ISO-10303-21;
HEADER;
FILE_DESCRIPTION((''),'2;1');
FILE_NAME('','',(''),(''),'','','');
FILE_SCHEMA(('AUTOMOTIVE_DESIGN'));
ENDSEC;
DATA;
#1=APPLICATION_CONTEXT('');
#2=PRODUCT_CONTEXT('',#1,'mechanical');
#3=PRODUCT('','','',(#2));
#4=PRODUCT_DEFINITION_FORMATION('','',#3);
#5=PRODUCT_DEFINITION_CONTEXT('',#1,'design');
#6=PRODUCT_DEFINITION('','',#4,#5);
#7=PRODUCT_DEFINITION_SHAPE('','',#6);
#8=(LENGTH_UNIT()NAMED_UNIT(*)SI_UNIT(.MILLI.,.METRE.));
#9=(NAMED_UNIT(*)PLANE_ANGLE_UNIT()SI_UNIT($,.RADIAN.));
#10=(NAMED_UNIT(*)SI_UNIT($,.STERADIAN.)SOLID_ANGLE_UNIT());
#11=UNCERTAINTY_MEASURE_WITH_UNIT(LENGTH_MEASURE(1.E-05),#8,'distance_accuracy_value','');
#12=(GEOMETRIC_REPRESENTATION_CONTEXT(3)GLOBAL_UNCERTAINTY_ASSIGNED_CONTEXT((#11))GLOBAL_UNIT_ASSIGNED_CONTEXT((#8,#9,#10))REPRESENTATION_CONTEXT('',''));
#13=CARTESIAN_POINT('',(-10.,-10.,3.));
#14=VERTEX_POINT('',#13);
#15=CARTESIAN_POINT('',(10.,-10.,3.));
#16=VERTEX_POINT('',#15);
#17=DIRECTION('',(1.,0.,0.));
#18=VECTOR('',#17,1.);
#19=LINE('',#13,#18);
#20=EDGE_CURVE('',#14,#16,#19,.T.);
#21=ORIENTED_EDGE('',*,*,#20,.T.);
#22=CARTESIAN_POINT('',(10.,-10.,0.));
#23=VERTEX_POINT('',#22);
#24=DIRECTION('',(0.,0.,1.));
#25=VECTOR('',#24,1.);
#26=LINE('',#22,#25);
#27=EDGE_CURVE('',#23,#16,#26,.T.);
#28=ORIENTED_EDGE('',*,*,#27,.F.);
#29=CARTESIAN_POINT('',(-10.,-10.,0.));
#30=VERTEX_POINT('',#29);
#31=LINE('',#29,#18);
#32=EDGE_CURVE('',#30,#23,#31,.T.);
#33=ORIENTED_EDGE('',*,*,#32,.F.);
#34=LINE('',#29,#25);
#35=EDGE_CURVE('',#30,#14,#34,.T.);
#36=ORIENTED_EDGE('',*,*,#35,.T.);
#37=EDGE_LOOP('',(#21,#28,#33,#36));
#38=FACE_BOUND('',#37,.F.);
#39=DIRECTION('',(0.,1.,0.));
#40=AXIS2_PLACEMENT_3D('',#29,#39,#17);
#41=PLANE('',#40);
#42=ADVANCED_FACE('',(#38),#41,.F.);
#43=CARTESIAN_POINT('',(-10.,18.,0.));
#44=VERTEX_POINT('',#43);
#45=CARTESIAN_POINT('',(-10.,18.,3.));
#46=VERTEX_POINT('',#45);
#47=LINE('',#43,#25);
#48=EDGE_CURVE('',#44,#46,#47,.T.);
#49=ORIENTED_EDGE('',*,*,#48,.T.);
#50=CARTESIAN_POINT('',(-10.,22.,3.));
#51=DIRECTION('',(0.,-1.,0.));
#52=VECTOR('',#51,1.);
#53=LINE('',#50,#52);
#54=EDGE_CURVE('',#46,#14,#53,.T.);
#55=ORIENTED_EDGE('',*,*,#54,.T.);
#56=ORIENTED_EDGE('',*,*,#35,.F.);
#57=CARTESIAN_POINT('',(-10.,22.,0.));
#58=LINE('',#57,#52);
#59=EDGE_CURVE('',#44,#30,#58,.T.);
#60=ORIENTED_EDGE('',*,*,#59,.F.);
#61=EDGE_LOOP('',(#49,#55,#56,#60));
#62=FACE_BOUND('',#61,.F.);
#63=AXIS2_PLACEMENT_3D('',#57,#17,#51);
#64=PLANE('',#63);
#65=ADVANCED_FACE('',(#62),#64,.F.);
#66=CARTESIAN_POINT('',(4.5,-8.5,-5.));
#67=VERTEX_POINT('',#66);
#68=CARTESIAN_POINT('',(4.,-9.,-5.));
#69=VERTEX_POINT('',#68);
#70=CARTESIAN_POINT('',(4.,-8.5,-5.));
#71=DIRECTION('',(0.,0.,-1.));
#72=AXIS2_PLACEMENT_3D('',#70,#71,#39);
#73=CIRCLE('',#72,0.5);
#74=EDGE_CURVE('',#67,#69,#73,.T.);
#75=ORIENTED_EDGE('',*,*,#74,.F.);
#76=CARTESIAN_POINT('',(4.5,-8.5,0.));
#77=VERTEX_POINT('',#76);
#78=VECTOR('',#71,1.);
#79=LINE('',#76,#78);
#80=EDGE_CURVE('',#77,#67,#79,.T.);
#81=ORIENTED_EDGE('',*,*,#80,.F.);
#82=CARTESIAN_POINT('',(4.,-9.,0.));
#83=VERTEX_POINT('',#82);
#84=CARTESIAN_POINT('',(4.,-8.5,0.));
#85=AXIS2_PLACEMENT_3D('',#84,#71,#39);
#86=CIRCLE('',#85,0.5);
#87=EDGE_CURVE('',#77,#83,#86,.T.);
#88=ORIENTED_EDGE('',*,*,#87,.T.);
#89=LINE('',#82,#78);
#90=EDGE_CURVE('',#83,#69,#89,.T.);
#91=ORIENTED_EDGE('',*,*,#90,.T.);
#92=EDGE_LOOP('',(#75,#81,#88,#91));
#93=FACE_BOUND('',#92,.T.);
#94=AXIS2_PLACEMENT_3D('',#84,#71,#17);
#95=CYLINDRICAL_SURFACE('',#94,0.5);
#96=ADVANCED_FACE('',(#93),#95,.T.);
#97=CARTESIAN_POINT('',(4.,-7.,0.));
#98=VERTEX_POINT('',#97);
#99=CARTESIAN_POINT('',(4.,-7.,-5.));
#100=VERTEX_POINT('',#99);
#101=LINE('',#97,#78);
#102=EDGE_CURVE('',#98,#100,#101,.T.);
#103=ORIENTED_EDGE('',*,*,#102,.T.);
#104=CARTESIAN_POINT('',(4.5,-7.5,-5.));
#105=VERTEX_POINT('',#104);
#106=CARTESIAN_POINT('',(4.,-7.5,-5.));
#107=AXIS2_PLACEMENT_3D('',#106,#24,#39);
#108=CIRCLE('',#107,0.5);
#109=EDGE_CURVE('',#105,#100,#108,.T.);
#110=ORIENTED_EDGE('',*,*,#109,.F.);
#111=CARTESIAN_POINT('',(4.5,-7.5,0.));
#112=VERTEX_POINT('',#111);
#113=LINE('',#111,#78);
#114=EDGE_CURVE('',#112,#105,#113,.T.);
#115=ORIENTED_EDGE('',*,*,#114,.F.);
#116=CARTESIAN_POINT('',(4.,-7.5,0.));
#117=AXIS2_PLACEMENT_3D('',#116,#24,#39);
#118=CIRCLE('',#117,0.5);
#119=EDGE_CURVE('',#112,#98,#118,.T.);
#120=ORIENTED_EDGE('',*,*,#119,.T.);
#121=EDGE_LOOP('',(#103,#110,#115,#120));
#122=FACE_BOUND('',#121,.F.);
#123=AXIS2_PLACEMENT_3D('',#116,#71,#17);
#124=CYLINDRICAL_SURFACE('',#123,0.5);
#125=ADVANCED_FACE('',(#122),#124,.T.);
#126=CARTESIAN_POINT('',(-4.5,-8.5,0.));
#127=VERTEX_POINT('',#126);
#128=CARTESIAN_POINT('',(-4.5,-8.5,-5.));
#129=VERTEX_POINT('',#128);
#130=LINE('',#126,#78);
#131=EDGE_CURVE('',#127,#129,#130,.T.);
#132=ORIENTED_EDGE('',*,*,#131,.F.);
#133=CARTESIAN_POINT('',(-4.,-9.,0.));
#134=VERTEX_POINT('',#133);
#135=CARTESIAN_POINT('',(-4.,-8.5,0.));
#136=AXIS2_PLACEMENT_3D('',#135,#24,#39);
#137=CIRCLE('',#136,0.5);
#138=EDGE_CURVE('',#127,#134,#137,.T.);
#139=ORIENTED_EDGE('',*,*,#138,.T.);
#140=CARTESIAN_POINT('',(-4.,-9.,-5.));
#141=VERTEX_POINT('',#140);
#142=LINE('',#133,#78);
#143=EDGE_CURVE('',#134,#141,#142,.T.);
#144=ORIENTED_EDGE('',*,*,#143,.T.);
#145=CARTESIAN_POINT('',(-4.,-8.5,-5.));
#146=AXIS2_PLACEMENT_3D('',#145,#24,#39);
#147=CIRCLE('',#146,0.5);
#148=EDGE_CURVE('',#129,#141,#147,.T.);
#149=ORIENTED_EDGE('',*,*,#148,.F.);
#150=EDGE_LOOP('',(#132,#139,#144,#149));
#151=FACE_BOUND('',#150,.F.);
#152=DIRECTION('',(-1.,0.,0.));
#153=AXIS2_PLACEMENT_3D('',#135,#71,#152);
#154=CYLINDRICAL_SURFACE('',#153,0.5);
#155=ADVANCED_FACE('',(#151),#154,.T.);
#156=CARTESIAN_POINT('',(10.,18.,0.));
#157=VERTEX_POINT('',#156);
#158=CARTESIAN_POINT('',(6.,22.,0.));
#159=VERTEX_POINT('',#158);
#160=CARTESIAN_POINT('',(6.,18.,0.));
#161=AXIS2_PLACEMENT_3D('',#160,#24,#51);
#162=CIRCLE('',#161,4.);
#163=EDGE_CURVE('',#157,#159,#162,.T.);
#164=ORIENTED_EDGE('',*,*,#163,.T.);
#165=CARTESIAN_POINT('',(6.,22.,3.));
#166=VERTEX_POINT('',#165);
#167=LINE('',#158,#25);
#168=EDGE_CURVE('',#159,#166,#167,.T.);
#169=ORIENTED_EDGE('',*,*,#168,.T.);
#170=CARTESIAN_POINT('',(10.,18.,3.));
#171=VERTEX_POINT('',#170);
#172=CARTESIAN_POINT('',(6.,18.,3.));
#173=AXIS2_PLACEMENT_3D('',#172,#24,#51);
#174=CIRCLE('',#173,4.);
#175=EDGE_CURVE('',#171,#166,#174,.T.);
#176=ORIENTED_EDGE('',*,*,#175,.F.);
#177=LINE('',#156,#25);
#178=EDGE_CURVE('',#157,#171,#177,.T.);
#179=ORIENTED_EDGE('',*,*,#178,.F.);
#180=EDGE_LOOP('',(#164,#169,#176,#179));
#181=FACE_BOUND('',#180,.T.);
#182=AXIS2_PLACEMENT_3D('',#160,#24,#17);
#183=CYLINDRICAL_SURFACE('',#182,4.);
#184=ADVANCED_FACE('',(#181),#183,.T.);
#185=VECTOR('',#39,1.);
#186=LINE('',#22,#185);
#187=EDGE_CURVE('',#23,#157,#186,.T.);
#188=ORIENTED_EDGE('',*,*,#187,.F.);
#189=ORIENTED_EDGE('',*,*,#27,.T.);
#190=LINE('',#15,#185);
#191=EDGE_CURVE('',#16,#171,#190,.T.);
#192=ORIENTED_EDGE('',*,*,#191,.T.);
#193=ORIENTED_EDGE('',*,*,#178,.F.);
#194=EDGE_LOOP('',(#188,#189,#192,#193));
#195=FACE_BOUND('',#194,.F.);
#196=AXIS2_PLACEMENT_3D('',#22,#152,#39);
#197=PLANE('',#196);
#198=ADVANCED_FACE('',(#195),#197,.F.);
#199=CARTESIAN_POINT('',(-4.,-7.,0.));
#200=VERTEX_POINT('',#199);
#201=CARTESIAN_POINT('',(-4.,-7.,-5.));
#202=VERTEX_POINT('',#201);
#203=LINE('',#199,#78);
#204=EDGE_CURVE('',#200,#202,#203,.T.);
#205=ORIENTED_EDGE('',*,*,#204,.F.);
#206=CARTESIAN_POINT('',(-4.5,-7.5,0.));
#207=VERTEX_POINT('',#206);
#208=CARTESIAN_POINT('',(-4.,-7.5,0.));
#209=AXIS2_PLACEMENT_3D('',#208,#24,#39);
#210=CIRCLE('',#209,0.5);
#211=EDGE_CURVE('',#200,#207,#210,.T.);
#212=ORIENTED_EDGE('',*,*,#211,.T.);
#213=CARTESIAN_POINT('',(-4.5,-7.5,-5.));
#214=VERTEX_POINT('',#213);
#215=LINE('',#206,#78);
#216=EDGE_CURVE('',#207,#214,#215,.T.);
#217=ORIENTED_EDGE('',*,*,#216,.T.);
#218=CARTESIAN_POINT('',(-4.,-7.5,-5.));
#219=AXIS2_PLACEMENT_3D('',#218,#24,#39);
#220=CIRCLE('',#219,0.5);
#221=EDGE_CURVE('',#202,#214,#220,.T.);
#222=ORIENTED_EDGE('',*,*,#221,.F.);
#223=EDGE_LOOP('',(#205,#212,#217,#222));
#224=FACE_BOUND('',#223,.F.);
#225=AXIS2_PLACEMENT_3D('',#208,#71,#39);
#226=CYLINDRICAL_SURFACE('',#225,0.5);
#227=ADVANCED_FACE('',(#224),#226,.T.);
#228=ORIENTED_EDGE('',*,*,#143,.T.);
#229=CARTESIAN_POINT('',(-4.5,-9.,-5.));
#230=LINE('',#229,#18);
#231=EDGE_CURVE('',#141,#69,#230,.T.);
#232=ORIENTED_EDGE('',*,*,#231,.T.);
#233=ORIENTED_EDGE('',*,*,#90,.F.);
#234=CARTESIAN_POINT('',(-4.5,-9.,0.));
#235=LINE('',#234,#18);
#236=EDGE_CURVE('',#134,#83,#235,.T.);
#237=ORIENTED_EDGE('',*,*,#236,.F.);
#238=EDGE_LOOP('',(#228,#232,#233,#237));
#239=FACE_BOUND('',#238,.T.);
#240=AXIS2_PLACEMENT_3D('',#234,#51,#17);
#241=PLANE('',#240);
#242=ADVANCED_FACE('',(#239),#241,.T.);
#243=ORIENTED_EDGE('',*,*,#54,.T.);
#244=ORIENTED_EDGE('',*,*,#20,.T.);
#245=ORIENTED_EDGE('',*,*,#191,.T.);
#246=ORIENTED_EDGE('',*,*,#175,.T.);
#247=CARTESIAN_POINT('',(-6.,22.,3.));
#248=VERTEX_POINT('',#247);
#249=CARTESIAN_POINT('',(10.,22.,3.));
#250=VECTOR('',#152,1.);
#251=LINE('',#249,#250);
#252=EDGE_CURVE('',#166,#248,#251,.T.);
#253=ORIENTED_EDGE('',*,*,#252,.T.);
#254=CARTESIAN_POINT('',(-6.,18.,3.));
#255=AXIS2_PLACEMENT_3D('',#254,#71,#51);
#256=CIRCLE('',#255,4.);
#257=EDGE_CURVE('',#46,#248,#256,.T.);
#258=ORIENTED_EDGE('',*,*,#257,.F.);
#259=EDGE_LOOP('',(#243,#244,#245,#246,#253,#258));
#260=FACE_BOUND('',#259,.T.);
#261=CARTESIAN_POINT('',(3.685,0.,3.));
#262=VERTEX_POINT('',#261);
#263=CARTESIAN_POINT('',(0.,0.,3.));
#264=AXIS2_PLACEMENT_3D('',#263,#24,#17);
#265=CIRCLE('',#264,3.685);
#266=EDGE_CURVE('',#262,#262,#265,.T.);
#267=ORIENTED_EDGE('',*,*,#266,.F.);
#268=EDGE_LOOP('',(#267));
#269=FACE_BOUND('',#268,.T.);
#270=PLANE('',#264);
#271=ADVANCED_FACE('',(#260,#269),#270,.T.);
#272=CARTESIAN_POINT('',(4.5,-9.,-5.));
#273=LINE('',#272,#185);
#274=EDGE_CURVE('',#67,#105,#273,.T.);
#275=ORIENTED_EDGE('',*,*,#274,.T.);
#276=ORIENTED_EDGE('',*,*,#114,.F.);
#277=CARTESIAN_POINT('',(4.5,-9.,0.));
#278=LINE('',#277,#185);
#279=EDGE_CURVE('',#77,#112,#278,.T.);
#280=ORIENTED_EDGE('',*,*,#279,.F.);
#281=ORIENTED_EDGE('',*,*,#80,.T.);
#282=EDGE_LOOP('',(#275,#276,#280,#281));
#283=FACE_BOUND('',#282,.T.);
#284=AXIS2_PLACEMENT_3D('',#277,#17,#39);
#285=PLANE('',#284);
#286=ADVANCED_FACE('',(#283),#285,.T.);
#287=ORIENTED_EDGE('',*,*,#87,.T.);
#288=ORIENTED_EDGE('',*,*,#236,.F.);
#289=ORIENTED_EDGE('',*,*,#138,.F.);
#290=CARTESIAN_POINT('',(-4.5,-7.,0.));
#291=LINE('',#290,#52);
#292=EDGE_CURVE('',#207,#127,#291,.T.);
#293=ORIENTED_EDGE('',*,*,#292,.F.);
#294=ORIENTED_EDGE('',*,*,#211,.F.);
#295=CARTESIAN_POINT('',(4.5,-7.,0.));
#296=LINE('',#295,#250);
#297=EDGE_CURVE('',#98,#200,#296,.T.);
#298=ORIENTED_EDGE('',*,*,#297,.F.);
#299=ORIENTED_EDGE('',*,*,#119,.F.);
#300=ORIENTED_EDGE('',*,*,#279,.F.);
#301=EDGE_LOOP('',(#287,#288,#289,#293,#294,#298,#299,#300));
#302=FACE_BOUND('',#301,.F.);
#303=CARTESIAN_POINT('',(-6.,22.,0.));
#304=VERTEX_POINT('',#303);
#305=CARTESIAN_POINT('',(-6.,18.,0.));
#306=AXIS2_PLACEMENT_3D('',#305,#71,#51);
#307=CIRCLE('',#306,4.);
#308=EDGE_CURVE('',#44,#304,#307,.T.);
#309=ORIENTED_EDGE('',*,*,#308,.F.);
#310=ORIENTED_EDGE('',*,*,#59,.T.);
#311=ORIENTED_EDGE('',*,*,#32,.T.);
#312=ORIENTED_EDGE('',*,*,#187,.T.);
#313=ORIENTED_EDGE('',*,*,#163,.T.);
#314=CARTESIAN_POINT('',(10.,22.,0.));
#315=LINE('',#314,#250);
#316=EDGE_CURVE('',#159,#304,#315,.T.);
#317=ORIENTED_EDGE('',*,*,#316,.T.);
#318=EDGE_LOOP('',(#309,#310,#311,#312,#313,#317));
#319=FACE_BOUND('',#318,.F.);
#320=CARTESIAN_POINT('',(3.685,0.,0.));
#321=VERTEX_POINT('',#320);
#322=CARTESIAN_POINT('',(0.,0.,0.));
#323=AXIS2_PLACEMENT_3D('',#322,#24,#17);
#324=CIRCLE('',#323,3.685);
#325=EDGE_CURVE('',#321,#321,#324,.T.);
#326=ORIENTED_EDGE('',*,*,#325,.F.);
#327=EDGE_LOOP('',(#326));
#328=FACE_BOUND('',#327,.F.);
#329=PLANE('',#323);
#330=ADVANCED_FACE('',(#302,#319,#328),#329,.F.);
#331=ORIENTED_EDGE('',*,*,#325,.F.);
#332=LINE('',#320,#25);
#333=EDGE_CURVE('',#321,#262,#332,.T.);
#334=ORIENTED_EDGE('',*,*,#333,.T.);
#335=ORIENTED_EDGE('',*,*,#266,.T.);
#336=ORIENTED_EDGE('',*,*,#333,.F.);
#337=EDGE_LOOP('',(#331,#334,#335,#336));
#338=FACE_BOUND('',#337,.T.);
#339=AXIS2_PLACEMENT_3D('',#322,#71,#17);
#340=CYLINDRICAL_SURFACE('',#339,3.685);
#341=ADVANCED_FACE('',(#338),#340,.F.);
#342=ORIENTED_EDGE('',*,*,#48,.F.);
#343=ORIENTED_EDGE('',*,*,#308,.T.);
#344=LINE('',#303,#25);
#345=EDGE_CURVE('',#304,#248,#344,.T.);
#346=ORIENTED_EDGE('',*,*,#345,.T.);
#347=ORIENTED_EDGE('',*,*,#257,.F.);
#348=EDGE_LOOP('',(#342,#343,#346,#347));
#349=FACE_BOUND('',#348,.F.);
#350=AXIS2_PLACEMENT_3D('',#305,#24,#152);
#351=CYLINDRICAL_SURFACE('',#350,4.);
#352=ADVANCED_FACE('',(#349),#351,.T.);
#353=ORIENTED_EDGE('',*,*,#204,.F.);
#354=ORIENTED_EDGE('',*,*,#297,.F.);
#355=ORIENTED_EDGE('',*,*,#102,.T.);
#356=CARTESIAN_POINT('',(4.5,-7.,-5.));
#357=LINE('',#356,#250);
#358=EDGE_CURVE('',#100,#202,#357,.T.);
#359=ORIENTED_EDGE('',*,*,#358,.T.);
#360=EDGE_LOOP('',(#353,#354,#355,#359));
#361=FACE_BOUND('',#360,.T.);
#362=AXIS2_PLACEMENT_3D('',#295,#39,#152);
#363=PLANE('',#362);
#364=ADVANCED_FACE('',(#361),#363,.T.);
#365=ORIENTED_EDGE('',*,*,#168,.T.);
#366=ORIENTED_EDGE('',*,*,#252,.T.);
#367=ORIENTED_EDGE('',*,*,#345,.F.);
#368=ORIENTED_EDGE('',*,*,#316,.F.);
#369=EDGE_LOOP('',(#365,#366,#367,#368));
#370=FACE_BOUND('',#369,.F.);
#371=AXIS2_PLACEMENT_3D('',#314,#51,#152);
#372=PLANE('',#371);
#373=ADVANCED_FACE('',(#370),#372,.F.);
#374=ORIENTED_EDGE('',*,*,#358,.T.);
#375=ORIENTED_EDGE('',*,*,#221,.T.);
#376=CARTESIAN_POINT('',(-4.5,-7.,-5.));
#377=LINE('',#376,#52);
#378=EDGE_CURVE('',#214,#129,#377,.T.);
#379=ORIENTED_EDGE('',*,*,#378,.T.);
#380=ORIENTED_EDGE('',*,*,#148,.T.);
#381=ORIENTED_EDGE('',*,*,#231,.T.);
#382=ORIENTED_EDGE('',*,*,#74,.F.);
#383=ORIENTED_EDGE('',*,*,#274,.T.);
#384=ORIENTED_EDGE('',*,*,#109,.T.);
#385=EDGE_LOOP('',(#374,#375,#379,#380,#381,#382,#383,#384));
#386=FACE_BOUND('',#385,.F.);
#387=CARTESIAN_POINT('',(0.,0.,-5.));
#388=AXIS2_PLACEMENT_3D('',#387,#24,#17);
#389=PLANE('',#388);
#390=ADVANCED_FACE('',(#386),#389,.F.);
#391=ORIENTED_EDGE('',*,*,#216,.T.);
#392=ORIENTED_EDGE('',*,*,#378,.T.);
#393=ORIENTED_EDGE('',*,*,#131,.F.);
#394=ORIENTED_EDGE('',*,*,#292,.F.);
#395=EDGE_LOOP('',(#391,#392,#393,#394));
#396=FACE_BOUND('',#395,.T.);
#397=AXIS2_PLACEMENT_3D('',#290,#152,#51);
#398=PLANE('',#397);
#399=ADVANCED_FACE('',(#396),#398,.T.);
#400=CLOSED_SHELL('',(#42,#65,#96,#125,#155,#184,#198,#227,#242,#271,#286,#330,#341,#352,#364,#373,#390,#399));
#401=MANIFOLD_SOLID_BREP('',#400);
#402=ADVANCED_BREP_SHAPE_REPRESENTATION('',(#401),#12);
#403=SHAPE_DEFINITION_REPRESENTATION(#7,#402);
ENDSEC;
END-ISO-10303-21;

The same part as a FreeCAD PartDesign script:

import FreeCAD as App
import Part
import Sketcher

V = App.Vector
Q = App.Units.Quantity


def edges_at(feature, points):
    """Names of the edges that pass closest to the given points."""
    edges = feature.Shape.Edges
    near = lambda p: min(range(len(edges)), key=lambda i: edges[i].distToShape(Part.Vertex(*p))[0])
    return sorted({f"Edge{near(p) + 1}" for p in points})

doc = App.newDocument("Part")
body = doc.addObject("PartDesign::Body", "Body")

# Sketch on XY plane
sketch1 = body.newObject("Sketcher::SketchObject", "Sketch")
sketch1.AttachmentSupport = (doc.getObject("XY_Plane"), [""])
sketch1.MapMode = "FlatFace"
sketch1.addGeometry(Part.LineSegment(V(-10, 22, 0), V(-10, -10, 0)), False)
sketch1.addGeometry(Part.LineSegment(V(-10, -10, 0), V(10, -10, 0)), False)
sketch1.addGeometry(Part.LineSegment(V(10, -10, 0), V(10, 22, 0)), False)
sketch1.addGeometry(Part.LineSegment(V(10, 22, 0), V(-10, 22, 0)), False)
sketch1.addGeometry(Part.LineSegment(V(6, 7, 0), V(6, -7, 0)), False)
sketch1.addGeometry(Part.LineSegment(V(6, -7, 0), V(-6, -7, 0)), False)
sketch1.addGeometry(Part.LineSegment(V(-6, -7, 0), V(-6, 7, 0)), False)
sketch1.addGeometry(Part.LineSegment(V(-6, 7, 0), V(6, 7, 0)), False)
sketch1.addConstraint(Sketcher.Constraint("Coincident", 0, 2, 1, 1))
sketch1.addConstraint(Sketcher.Constraint("Coincident", 1, 2, 2, 1))
sketch1.addConstraint(Sketcher.Constraint("Coincident", 2, 2, 3, 1))
sketch1.addConstraint(Sketcher.Constraint("Coincident", 3, 2, 0, 1))
sketch1.addConstraint(Sketcher.Constraint("Coincident", 4, 2, 5, 1))
sketch1.addConstraint(Sketcher.Constraint("Coincident", 5, 2, 6, 1))
sketch1.addConstraint(Sketcher.Constraint("Coincident", 6, 2, 7, 1))
sketch1.addConstraint(Sketcher.Constraint("Coincident", 7, 2, 4, 1))
sketch1.addConstraint(Sketcher.Constraint("Vertical", 0))
sketch1.addConstraint(Sketcher.Constraint("Horizontal", 1))
sketch1.addConstraint(Sketcher.Constraint("Vertical", 2))
sketch1.addConstraint(Sketcher.Constraint("Horizontal", 3))
sketch1.addConstraint(Sketcher.Constraint("Vertical", 4))
sketch1.addConstraint(Sketcher.Constraint("Horizontal", 5))
sketch1.addConstraint(Sketcher.Constraint("Vertical", 6))
sketch1.addConstraint(Sketcher.Constraint("Horizontal", 7))
sketch1.addConstraint(Sketcher.Constraint("Symmetric", 4, 2, 6, 2, -1, 1))
sketch1.addConstraint(Sketcher.Constraint("DistanceX", 1, 1, 1, 2, Q("20 mm")))
sketch1.addConstraint(Sketcher.Constraint("DistanceY", 0, 2, 0, 1, Q("32 mm")))
sketch1.addConstraint(Sketcher.Constraint("DistanceX", 5, 2, 5, 1, Q("12.9 mm")))
sketch1.addConstraint(Sketcher.Constraint("DistanceY", 4, 2, 4, 1, Q("13.7 mm")))
sketch1.addConstraint(Sketcher.Constraint("DistanceY", -1, 1, 2, 2, Q("22 mm")))
sketch1.addConstraint(Sketcher.Constraint("DistanceX", 0, 2, -1, 1, Q("10 mm")))
pad1 = body.newObject("PartDesign::Pad", "Pad")
pad1.Profile = sketch1
pad1.Length = 3

# Sketch on XY plane
sketch2 = body.newObject("Sketcher::SketchObject", "Sketch001")
sketch2.AttachmentSupport = (doc.getObject("XY_Plane"), [""])
sketch2.MapMode = "FlatFace"
sketch2.addGeometry(Part.LineSegment(V(-6.5, -6.8, 0), V(6.5, -6.8, 0)), False)
sketch2.addGeometry(Part.LineSegment(V(6.5, -6.8, 0), V(6.5, 6.8, 0)), False)
sketch2.addGeometry(Part.LineSegment(V(6.5, 6.8, 0), V(-6.5, 6.8, 0)), False)
sketch2.addGeometry(Part.LineSegment(V(-6.5, 6.8, 0), V(-6.5, -6.8, 0)), False)
sketch2.addGeometry(Part.Circle(V(0, 0, 0), V(0, 0, 1), 3.7), False)
sketch2.addConstraint(Sketcher.Constraint("Coincident", 0, 2, 1, 1))
sketch2.addConstraint(Sketcher.Constraint("Coincident", 1, 2, 2, 1))
sketch2.addConstraint(Sketcher.Constraint("Coincident", 2, 2, 3, 1))
sketch2.addConstraint(Sketcher.Constraint("Coincident", 3, 2, 0, 1))
sketch2.addConstraint(Sketcher.Constraint("Horizontal", 0))
sketch2.addConstraint(Sketcher.Constraint("Vertical", 1))
sketch2.addConstraint(Sketcher.Constraint("Horizontal", 2))
sketch2.addConstraint(Sketcher.Constraint("Vertical", 3))
sketch2.addConstraint(Sketcher.Constraint("Coincident", 4, 3, -1, 1))
sketch2.addConstraint(Sketcher.Constraint("Symmetric", 0, 2, 2, 2, -1, 1))
sketch2.addConstraint(Sketcher.Constraint("DistanceX", 0, 1, 0, 2, Q("12.9 mm")))
sketch2.addConstraint(Sketcher.Constraint("DistanceY", 1, 1, 1, 2, Q("13.7 mm")))
sketch2.addConstraint(Sketcher.Constraint("Diameter", 4, Q("7.37 mm")))
pad2 = body.newObject("PartDesign::Pad", "Pad001")
pad2.Profile = sketch2
pad2.Length = 3
doc.recompute()

fillet = body.newObject("PartDesign::Fillet", "Fillet")
fillet.Base = (pad2, edges_at(pad2, [(10, 22, 1.5), (-10, 22, 1.5)]))
fillet.Radius = 4

# Sketch on XY plane
sketch3 = body.newObject("Sketcher::SketchObject", "Sketch002")
sketch3.AttachmentSupport = (doc.getObject("XY_Plane"), [""])
sketch3.MapMode = "FlatFace"
sketch3.addGeometry(Part.LineSegment(V(4.5, -9, 0), V(4.5, -7, 0)), False)
sketch3.addGeometry(Part.LineSegment(V(4.5, -7, 0), V(-4.5, -7, 0)), False)
sketch3.addGeometry(Part.LineSegment(V(-4.5, -7, 0), V(-4.5, -9, 0)), False)
sketch3.addGeometry(Part.LineSegment(V(-4.5, -9, 0), V(4.5, -9, 0)), False)
sketch3.addConstraint(Sketcher.Constraint("Coincident", 0, 2, 1, 1))
sketch3.addConstraint(Sketcher.Constraint("Coincident", 1, 2, 2, 1))
sketch3.addConstraint(Sketcher.Constraint("Coincident", 2, 2, 3, 1))
sketch3.addConstraint(Sketcher.Constraint("Coincident", 3, 2, 0, 1))
sketch3.addConstraint(Sketcher.Constraint("Vertical", 0))
sketch3.addConstraint(Sketcher.Constraint("Horizontal", 1))
sketch3.addConstraint(Sketcher.Constraint("Vertical", 2))
sketch3.addConstraint(Sketcher.Constraint("Horizontal", 3))
sketch3.addConstraint(Sketcher.Constraint("DistanceX", 1, 2, 1, 1, Q("9 mm")))
sketch3.addConstraint(Sketcher.Constraint("DistanceY", 0, 1, 0, 2, Q("2 mm")))
sketch3.addConstraint(Sketcher.Constraint("DistanceY", 2, 2, -1, 1, Q("9 mm")))
sketch3.addConstraint(Sketcher.Constraint("DistanceX", -1, 1, 0, 2, Q("4.5 mm")))
pad3 = body.newObject("PartDesign::Pad", "Pad002")
pad3.Profile = sketch3
pad3.Length = 5
pad3.Reversed = True
doc.recompute()

fillet2 = body.newObject("PartDesign::Fillet", "Fillet001")
fillet2.Base = (pad3, edges_at(pad3, [
    (4.5, -7, -2.5),
    (4.5, -9, -2.5),
    (-4.5, -7, -2.5),
    (-4.5, -9, -2.5),
]))
fillet2.Radius = 0.5

doc.recompute()
